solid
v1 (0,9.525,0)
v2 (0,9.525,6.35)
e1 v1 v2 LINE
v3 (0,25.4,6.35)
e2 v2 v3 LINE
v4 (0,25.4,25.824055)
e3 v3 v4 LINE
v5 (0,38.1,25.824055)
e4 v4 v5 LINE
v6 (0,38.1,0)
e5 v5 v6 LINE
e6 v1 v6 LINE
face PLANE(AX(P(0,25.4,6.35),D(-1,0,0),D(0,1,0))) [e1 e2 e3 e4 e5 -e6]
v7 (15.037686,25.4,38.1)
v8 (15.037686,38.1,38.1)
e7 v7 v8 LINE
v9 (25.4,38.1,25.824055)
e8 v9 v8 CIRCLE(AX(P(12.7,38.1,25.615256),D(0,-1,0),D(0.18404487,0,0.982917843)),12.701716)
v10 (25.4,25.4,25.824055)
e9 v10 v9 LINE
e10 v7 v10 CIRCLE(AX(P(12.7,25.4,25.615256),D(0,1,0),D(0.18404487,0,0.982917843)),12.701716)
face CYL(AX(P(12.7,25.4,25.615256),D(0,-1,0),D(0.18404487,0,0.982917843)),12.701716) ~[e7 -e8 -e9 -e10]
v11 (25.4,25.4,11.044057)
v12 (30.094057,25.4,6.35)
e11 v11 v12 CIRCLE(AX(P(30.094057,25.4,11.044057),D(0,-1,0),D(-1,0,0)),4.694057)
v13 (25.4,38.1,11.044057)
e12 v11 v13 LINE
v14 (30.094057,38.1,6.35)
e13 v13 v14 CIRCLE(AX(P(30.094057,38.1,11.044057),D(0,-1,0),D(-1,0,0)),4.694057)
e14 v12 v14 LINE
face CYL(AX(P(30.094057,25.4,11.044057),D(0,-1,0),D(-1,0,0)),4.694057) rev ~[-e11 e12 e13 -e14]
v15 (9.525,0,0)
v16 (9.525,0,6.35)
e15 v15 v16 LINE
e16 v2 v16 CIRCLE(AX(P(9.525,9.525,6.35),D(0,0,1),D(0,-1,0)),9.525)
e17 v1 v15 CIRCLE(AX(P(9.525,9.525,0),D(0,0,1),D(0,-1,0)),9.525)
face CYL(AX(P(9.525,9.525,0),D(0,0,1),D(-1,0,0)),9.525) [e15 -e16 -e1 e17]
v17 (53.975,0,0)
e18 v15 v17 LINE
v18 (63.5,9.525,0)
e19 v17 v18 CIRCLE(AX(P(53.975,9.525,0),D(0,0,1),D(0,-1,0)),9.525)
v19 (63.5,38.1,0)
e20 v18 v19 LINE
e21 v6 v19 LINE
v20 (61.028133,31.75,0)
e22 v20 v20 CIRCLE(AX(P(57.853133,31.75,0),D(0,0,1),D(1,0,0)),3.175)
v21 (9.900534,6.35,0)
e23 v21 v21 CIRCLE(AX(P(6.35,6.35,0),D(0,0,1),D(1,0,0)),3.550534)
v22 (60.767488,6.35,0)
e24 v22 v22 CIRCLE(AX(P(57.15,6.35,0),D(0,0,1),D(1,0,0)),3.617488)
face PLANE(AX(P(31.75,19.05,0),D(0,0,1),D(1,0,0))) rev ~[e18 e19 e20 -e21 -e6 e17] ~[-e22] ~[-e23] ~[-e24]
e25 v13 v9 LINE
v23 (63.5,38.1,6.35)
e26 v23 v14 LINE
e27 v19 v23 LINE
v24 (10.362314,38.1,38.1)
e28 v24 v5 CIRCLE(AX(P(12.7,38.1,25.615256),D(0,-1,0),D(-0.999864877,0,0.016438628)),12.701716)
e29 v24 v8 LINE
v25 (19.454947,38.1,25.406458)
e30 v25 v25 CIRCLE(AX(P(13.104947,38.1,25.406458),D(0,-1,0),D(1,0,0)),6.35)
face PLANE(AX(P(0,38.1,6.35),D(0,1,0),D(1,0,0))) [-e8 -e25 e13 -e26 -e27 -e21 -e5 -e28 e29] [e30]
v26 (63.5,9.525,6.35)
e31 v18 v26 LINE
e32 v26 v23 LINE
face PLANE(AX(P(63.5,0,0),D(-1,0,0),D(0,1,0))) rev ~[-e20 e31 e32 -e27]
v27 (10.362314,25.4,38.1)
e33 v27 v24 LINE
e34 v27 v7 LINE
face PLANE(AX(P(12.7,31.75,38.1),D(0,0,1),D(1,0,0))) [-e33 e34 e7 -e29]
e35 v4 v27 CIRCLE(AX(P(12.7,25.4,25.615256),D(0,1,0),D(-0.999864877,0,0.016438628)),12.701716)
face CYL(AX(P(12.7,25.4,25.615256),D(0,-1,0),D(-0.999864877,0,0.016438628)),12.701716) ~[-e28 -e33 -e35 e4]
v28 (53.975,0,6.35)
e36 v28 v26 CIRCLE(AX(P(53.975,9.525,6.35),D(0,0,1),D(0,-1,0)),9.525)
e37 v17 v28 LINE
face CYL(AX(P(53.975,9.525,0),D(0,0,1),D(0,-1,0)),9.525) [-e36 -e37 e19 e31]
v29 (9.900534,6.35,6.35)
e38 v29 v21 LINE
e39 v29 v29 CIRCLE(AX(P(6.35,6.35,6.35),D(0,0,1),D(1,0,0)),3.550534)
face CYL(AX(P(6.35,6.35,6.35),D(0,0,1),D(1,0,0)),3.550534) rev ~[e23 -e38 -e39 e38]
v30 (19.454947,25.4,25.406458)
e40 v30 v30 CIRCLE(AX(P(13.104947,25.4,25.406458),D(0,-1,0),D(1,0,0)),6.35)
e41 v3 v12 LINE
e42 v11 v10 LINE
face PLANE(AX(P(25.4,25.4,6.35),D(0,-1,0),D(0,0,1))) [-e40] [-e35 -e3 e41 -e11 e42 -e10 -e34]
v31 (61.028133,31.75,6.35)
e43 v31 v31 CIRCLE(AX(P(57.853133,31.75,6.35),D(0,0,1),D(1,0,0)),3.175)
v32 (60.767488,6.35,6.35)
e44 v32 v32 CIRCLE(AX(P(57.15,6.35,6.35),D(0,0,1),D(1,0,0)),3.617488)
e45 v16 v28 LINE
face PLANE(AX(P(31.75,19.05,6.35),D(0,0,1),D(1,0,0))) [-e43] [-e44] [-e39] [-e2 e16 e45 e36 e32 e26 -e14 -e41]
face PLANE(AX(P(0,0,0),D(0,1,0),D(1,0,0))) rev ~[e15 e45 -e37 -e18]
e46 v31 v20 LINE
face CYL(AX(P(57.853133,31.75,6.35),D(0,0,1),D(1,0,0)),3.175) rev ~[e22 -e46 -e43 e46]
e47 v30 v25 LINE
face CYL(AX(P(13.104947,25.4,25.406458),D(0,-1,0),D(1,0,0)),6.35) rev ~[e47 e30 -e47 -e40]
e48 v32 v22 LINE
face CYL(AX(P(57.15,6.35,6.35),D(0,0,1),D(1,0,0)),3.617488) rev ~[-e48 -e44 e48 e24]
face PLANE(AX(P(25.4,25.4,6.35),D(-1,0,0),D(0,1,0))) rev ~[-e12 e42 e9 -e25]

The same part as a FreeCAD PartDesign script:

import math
import FreeCAD as App
import Part
import Sketcher
from FreeCAD import Vector
Q = App.Units.Quantity


def edges_at(feature, points):
    """Names of the edges that pass closest to the given points."""
    edges = feature.Shape.Edges
    near = lambda p: min(range(len(edges)), key=lambda i: edges[i].distToShape(Part.Vertex(*p))[0])
    return sorted({f"Edge{near(p) + 1}" for p in points})

doc = App.newDocument("Part")
body = doc.addObject("PartDesign::Body", "Body")

# Sketch on XY plane
sketch1 = body.newObject("Sketcher::SketchObject", "Sketch")
sketch1.AttachmentSupport = (doc.getObject("XY_Plane"), [""])
sketch1.MapMode = "FlatFace"
sketch1.addGeometry(Part.LineSegment(Vector(0, 38, 0), Vector(0, 0, 0)), False)
sketch1.addGeometry(Part.LineSegment(Vector(0, 0, 0), Vector(64, 0, 0)), False)
sketch1.addGeometry(Part.LineSegment(Vector(64, 0, 0), Vector(64, 38, 0)), False)
sketch1.addGeometry(Part.LineSegment(Vector(64, 38, 0), Vector(0, 38, 0)), False)
sketch1.addConstraint(Sketcher.Constraint("Coincident", 0, 2, 1, 1))
sketch1.addConstraint(Sketcher.Constraint("Coincident", 1, 2, 2, 1))
sketch1.addConstraint(Sketcher.Constraint("Coincident", 2, 2, 3, 1))
sketch1.addConstraint(Sketcher.Constraint("Coincident", 3, 2, 0, 1))
sketch1.addConstraint(Sketcher.Constraint("Vertical", 0))
sketch1.addConstraint(Sketcher.Constraint("Horizontal", 1))
sketch1.addConstraint(Sketcher.Constraint("Vertical", 2))
sketch1.addConstraint(Sketcher.Constraint("Horizontal", 3))
sketch1.addConstraint(Sketcher.Constraint("Coincident", 0, 2, -1, 1))
sketch1.addConstraint(Sketcher.Constraint("DistanceX", 1, 1, 1, 2, Q("2.5 in")))
sketch1.addConstraint(Sketcher.Constraint("DistanceY", 0, 2, 0, 1, Q("1.5 in")))
pad1 = body.newObject("PartDesign::Pad", "Pad")
pad1.Profile = sketch1
pad1.Length = Q("0.25 in")

# Sketch on XY plane
sketch2 = body.newObject("Sketcher::SketchObject", "Sketch001")
sketch2.AttachmentSupport = (doc.getObject("XY_Plane"), [""])
sketch2.MapMode = "FlatFace"
sketch2.AttachmentOffset = App.Placement(Vector(0, 0, 0.25 * 25.4), App.Rotation())
sketch2.addGeometry(Part.Circle(Vector(6.3, 6.3, 0), Vector(0, 0, 1), 3.6), False)
sketch2.addGeometry(Part.Circle(Vector(57.1, 6.3, 0), Vector(0, 0, 1), 3.6), False)
sketch2.addGeometry(Part.Circle(Vector(57.9, 31.8, 0), Vector(0, 0, 1), 3.2), False)
sketch2.addConstraint(Sketcher.Constraint("Horizontal", 0, 3, 1, 3))
sketch2.addConstraint(Sketcher.Constraint("Diameter", 2, Q("0.25 in")))
sketch2.addConstraint(Sketcher.Constraint("DistanceX", 0, 3, 1, 3, Q("2 in")))
sketch2.addConstraint(Sketcher.Constraint("DistanceY", 1, 3, 2, 3, Q("1 in")))
sketch2.addConstraint(Sketcher.Constraint("DistanceX", -1, 1, 0, 3, Q("0.25 in")))
sketch2.addConstraint(Sketcher.Constraint("DistanceY", -1, 1, 0, 3, Q("0.25 in")))
sketch2.addConstraint(Sketcher.Constraint("Diameter", 0, Q("7.101069 mm")))
sketch2.addConstraint(Sketcher.Constraint("Diameter", 1, Q("7.234976 mm")))
sketch2.addConstraint(Sketcher.Constraint("DistanceX", -1, 1, 2, 3, Q("57.853133 mm")))
pocket1 = body.newObject("PartDesign::Pocket", "Pocket")
pocket1.Profile = sketch2
pocket1.Length = Q("1 in")

# Sketch on XY plane
sketch3 = body.newObject("Sketcher::SketchObject", "Sketch002")
sketch3.AttachmentSupport = (doc.getObject("XY_Plane"), [""])
sketch3.MapMode = "FlatFace"
sketch3.AttachmentOffset = App.Placement(Vector(0, 0, 0.25 * 25.4), App.Rotation())
sketch3.addGeometry(Part.LineSegment(Vector(0, 38, 0), Vector(0, 25, 0)), False)
sketch3.addGeometry(Part.LineSegment(Vector(0, 25, 0), Vector(25, 25, 0)), False)
sketch3.addGeometry(Part.LineSegment(Vector(25, 25, 0), Vector(25, 38, 0)), False)
sketch3.addGeometry(Part.LineSegment(Vector(25, 38, 0), Vector(0, 38, 0)), False)
sketch3.addConstraint(Sketcher.Constraint("Coincident", 0, 2, 1, 1))
sketch3.addConstraint(Sketcher.Constraint("Coincident", 1, 2, 2, 1))
sketch3.addConstraint(Sketcher.Constraint("Coincident", 2, 2, 3, 1))
sketch3.addConstraint(Sketcher.Constraint("Coincident", 3, 2, 0, 1))
sketch3.addConstraint(Sketcher.Constraint("Vertical", 0))
sketch3.addConstraint(Sketcher.Constraint("Horizontal", 1))
sketch3.addConstraint(Sketcher.Constraint("Vertical", 2))
sketch3.addConstraint(Sketcher.Constraint("Horizontal", 3))
sketch3.addConstraint(Sketcher.Constraint("PointOnObject", 0, 2, -2))
sketch3.addConstraint(Sketcher.Constraint("DistanceX", 1, 1, 1, 2, Q("1 in")))
sketch3.addConstraint(Sketcher.Constraint("DistanceY", 0, 2, 0, 1, Q("0.5 in")))
sketch3.addConstraint(Sketcher.Constraint("DistanceY", -1, 1, 0, 2, Q("1 in")))
pad2 = body.newObject("PartDesign::Pad", "Pad001")
pad2.Profile = sketch3
pad2.Length = Q("1.25 in")

# Sketch on XZ plane
sketch4 = body.newObject("Sketcher::SketchObject", "Sketch003")
sketch4.AttachmentSupport = (doc.getObject("XZ_Plane"), [""])
sketch4.MapMode = "FlatFace"
sketch4.AttachmentOffset = App.Placement(Vector(0, 0, -1 * 25.4), App.Rotation())
sketch4.addGeometry(Part.Circle(Vector(13, 25, 0), Vector(0, 0, 1), 6), False)
sketch4.addGeometry(Part.ArcOfCircle(Part.Circle(Vector(13, 26, 0), Vector(0, 0, 1), 13), math.radians(101), math.radians(179)), False)
sketch4.addGeometry(Part.LineSegment(Vector(10, 38, 0), Vector(0, 38, 0)), False)
sketch4.addGeometry(Part.LineSegment(Vector(0, 38, 0), Vector(0, 26, 0)), False)
sketch4.addGeometry(Part.ArcOfCircle(Part.Circle(Vector(13, 26, 0), Vector(0, 0, 1), 13), math.radians(1), math.radians(79)), False)
sketch4.addGeometry(Part.LineSegment(Vector(25, 26, 0), Vector(25, 38, 0)), False)
sketch4.addGeometry(Part.LineSegment(Vector(25, 38, 0), Vector(15, 38, 0)), False)
sketch4.addConstraint(Sketcher.Constraint("Coincident", 1, 1, 2, 1))
sketch4.addConstraint(Sketcher.Constraint("Coincident", 2, 2, 3, 1))
sketch4.addConstraint(Sketcher.Constraint("Coincident", 3, 2, 1, 2))
sketch4.addConstraint(Sketcher.Constraint("Coincident", 4, 1, 5, 1))
sketch4.addConstraint(Sketcher.Constraint("Coincident", 5, 2, 6, 1))
sketch4.addConstraint(Sketcher.Constraint("Coincident", 6, 2, 4, 2))
sketch4.addConstraint(Sketcher.Constraint("Horizontal", 2))
sketch4.addConstraint(Sketcher.Constraint("Vertical", 3))
sketch4.addConstraint(Sketcher.Constraint("Vertical", 5))
sketch4.addConstraint(Sketcher.Constraint("Horizontal", 6))
sketch4.addConstraint(Sketcher.Constraint("Coincident", 4, 3, 1, 3))
sketch4.addConstraint(Sketcher.Constraint("Equal", 1, 4))
sketch4.addConstraint(Sketcher.Constraint("PointOnObject", 2, 2, -2))
sketch4.addConstraint(Sketcher.Constraint("Horizontal", 3, 2, 4, 1))
sketch4.addConstraint(Sketcher.Constraint("Horizontal", 2, 2, 5, 2))
sketch4.addConstraint(Sketcher.Constraint("Diameter", 0, Q("0.5 in")))
sketch4.addConstraint(Sketcher.Constraint("DistanceX", -1, 1, 4, 1, Q("1 in")))
sketch4.addConstraint(Sketcher.Constraint("DistanceY", -1, 1, 1, 1, Q("1.5 in")))
sketch4.addConstraint(Sketcher.Constraint("Radius", 1, Q("12.701716 mm")))
sketch4.addConstraint(Sketcher.Constraint("DistanceY", 0, 3, 1, 3, Q("0.208799 mm")))
sketch4.addConstraint(Sketcher.Constraint("DistanceX", 2, 2, 2, 1, Q("10.362314 mm")))
sketch4.addConstraint(Sketcher.Constraint("DistanceX", 0, 3, 6, 2, Q("1.932739 mm")))
pocket2 = body.newObject("PartDesign::Pocket", "Pocket001")
pocket2.Profile = sketch4
pocket2.Type = "ThroughAll"
doc.recompute()

fillet = body.newObject("PartDesign::Fillet", "Fillet")
fillet.Base = (pocket2, edges_at(pocket2, [(0, 0, 3.175), (63.5, 0, 3.175)]))
fillet.Radius = Q("0.375 in")

# Sketch on YZ plane
sketch5 = body.newObject("Sketcher::SketchObject", "Sketch004")
sketch5.AttachmentSupport = (doc.getObject("YZ_Plane"), [""])
sketch5.MapMode = "FlatFace"
sketch5.AttachmentOffset = App.Placement(Vector(0, 0, 1 * 25.4), App.Rotation())
sketch5.addGeometry(Part.LineSegment(Vector(25, 16, 0), Vector(25, 6, 0)), False)
sketch5.addGeometry(Part.LineSegment(Vector(25, 6, 0), Vector(38, 6, 0)), False)
sketch5.addGeometry(Part.LineSegment(Vector(38, 6, 0), Vector(38, 16, 0)), False)
sketch5.addGeometry(Part.LineSegment(Vector(38, 16, 0), Vector(25, 16, 0)), False)
sketch5.addConstraint(Sketcher.Constraint("Coincident", 0, 2, 1, 1))
sketch5.addConstraint(Sketcher.Constraint("Coincident", 1, 2, 2, 1))
sketch5.addConstraint(Sketcher.Constraint("Coincident", 2, 2, 3, 1))
sketch5.addConstraint(Sketcher.Constraint("Coincident", 3, 2, 0, 1))
sketch5.addConstraint(Sketcher.Constraint("Vertical", 0))
sketch5.addConstraint(Sketcher.Constraint("Horizontal", 1))
sketch5.addConstraint(Sketcher.Constraint("Vertical", 2))
sketch5.addConstraint(Sketcher.Constraint("Horizontal", 3))
sketch5.addConstraint(Sketcher.Constraint("DistanceX", 1, 1, 1, 2, Q("0.5 in")))
sketch5.addConstraint(Sketcher.Constraint("DistanceX", -1, 1, 0, 2, Q("1 in")))
sketch5.addConstraint(Sketcher.Constraint("DistanceY", -1, 1, 0, 2, Q("0.25 in")))
sketch5.addConstraint(Sketcher.Constraint("DistanceY", 0, 2, 0, 1, Q("9.737028 mm")))
pad3 = body.newObject("PartDesign::Pad", "Pad002")
pad3.Profile = sketch5
pad3.Length = Q("0.5 in")

# Sketch on XZ plane
sketch6 = body.newObject("Sketcher::SketchObject", "Sketch005")
sketch6.AttachmentSupport = (doc.getObject("XZ_Plane"), [""])
sketch6.MapMode = "FlatFace"
sketch6.AttachmentOffset = App.Placement(Vector(0, 0, -1 * 25.4), App.Rotation())
sketch6.addGeometry(Part.ArcOfCircle(Part.Circle(Vector(30.1, 11, 0), Vector(0, 0, 1), 4.7), math.radians(180), math.radians(270)), False)
sketch6.addGeometry(Part.LineSegment(Vector(30.1, 6.3, 0), Vector(38.1, 6.3, 0)), False)
sketch6.addGeometry(Part.LineSegment(Vector(38.1, 6.3, 0), Vector(38.1, 16.1, 0)), False)
sketch6.addGeometry(Part.LineSegment(Vector(38.1, 16.1, 0), Vector(25.4, 16.1, 0)), False)
sketch6.addGeometry(Part.LineSegment(Vector(25.4, 16.1, 0), Vector(25.4, 11, 0)), False)
sketch6.addConstraint(Sketcher.Constraint("Tangent", 0, 2, 1, 1))
sketch6.addConstraint(Sketcher.Constraint("Coincident", 1, 2, 2, 1))
sketch6.addConstraint(Sketcher.Constraint("Coincident", 2, 2, 3, 1))
sketch6.addConstraint(Sketcher.Constraint("Coincident", 3, 2, 4, 1))
sketch6.addConstraint(Sketcher.Constraint("Tangent", 4, 2, 0, 1))
sketch6.addConstraint(Sketcher.Constraint("Horizontal", 1))
sketch6.addConstraint(Sketcher.Constraint("Vertical", 2))
sketch6.addConstraint(Sketcher.Constraint("Horizontal", 3))
sketch6.addConstraint(Sketcher.Constraint("Vertical", 4))
sketch6.addConstraint(Sketcher.Constraint("DistanceX", 3, 2, 3, 1, Q("0.5 in")))
sketch6.addConstraint(Sketcher.Constraint("DistanceX", -1, 1, 3, 2, Q("1 in")))
sketch6.addConstraint(Sketcher.Constraint("DistanceY", -1, 1, 0, 2, Q("0.25 in")))
sketch6.addConstraint(Sketcher.Constraint("Radius", 0, Q("4.694057 mm")))
sketch6.addConstraint(Sketcher.Constraint("DistanceY", 4, 2, 4, 1, Q("5.042971 mm")))
pocket3 = body.newObject("PartDesign::Pocket", "Pocket002")
pocket3.Profile = sketch6
pocket3.Length = Q("1 in")

doc.recompute()
